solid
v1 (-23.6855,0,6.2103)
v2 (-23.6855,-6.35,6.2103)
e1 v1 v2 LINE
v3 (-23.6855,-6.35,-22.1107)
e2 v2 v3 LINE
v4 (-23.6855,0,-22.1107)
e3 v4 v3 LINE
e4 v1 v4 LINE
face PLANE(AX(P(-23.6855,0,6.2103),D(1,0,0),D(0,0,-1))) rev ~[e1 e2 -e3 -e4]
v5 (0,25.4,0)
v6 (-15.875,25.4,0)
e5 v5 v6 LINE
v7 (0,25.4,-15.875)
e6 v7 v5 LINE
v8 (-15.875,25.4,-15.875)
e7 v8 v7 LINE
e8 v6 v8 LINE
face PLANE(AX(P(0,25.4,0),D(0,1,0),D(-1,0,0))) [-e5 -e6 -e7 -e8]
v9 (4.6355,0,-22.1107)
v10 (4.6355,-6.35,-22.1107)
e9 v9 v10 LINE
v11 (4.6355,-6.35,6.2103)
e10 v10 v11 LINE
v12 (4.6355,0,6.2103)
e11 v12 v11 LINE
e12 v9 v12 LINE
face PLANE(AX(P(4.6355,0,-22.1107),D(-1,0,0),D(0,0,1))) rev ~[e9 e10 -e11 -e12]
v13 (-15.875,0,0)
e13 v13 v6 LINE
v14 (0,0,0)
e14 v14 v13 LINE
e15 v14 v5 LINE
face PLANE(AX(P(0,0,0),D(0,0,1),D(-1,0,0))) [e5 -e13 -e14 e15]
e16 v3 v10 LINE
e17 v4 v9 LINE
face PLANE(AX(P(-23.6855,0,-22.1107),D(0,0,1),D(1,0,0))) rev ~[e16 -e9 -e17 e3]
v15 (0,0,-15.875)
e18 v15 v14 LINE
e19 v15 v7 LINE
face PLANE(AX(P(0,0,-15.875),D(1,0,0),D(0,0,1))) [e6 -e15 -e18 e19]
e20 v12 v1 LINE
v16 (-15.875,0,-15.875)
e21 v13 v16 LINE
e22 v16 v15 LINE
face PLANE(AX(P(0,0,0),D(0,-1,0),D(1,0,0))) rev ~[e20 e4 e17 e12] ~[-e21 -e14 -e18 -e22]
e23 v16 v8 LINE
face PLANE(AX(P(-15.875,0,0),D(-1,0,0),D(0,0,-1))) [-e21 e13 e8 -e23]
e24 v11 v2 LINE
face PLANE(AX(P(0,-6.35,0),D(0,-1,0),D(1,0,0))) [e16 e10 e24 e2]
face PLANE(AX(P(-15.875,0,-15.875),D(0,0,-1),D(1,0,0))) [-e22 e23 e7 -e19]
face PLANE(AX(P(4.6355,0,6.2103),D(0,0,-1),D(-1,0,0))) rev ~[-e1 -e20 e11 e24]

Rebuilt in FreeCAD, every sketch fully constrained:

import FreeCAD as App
import Part
import Sketcher

V = App.Vector
Q = App.Units.Quantity


def add_polygon(sketch, points):
    """Adds a closed chain of lines whose ends are joined by coincident constraints."""
    first, n = sketch.GeometryCount, len(points)
    for a, b in zip(points, points[1:] + points[:1]):
        sketch.addGeometry(Part.LineSegment(App.Vector(*a, 0), App.Vector(*b, 0)), False)
    for i in range(n):
        sketch.addConstraint(Sketcher.Constraint("Coincident", first + i, 2, first + (i + 1) % n, 1))

doc = App.newDocument("Part")
params = doc.addObject("Spreadsheet::Sheet", "Params")
for row, (alias, value) in enumerate([
    ("sketch1_width", "0.625 in"),
    ("pad1_length", "1 in"),
    ("sketch2_width", "1.115 in"),
    ("pad2_length", "0.25 in"),
], start=1):
    params.set(f"A{row}", alias)
    params.set(f"B{row}", "=" + value)
    params.setAlias(f"B{row}", alias)

body = doc.addObject("PartDesign::Body", "Body")

# Sketch on XZ plane
sketch1 = body.newObject("Sketcher::SketchObject", "Sketch")
sketch1.AttachmentSupport = (doc.getObject("XZ_Plane"), [""])
sketch1.MapMode = "FlatFace"
add_polygon(sketch1, [(-16, 0), (0, 0), (0, -16), (-16, -16)])  # lines 0-3
sketch1.addConstraint(Sketcher.Constraint("Horizontal", 0))
sketch1.addConstraint(Sketcher.Constraint("Vertical", 1))
sketch1.addConstraint(Sketcher.Constraint("Horizontal", 2))
sketch1.addConstraint(Sketcher.Constraint("Vertical", 3))
sketch1.addConstraint(Sketcher.Constraint("Coincident", 0, 2, -1, 1))
sketch1.addConstraint(Sketcher.Constraint("Equal", 2, 1))
sketch1.addConstraint(Sketcher.Constraint("DistanceX", 0, 1, 0, 2, Q("0.625 in")))
sketch1.setExpression("Constraints[10]", "Params.sketch1_width")
pad1 = body.newObject("PartDesign::Pad", "Pad")
pad1.Profile = sketch1
pad1.setExpression("Length", "Params.pad1_length")
pad1.Reversed = True

# Sketch on XZ plane
sketch2 = body.newObject("Sketcher::SketchObject", "Sketch001")
sketch2.AttachmentSupport = (doc.getObject("XZ_Plane"), [""])
sketch2.MapMode = "FlatFace"
add_polygon(sketch2, [(-24, 6), (-24, -22), (5, -22), (5, 6)])  # lines 0-3
sketch2.addConstraint(Sketcher.Constraint("Vertical", 0))
sketch2.addConstraint(Sketcher.Constraint("Horizontal", 1))
sketch2.addConstraint(Sketcher.Constraint("Vertical", 2))
sketch2.addConstraint(Sketcher.Constraint("Horizontal", 3))
sketch2.addConstraint(Sketcher.Constraint("Equal", 3, 0))
sketch2.addConstraint(Sketcher.Constraint("DistanceX", 1, 1, 1, 2, Q("1.115 in")))
sketch2.addConstraint(Sketcher.Constraint("DistanceX", 0, 2, -1, 1, Q("0.9325 in")))
sketch2.addConstraint(Sketcher.Constraint("DistanceY", 0, 2, -1, 1, Q("0.8705 in")))
sketch2.setExpression("Constraints[9]", "Params.sketch2_width")
pad2 = body.newObject("PartDesign::Pad", "Pad001")
pad2.Profile = sketch2
pad2.setExpression("Length", "Params.pad2_length")

doc.recompute()
